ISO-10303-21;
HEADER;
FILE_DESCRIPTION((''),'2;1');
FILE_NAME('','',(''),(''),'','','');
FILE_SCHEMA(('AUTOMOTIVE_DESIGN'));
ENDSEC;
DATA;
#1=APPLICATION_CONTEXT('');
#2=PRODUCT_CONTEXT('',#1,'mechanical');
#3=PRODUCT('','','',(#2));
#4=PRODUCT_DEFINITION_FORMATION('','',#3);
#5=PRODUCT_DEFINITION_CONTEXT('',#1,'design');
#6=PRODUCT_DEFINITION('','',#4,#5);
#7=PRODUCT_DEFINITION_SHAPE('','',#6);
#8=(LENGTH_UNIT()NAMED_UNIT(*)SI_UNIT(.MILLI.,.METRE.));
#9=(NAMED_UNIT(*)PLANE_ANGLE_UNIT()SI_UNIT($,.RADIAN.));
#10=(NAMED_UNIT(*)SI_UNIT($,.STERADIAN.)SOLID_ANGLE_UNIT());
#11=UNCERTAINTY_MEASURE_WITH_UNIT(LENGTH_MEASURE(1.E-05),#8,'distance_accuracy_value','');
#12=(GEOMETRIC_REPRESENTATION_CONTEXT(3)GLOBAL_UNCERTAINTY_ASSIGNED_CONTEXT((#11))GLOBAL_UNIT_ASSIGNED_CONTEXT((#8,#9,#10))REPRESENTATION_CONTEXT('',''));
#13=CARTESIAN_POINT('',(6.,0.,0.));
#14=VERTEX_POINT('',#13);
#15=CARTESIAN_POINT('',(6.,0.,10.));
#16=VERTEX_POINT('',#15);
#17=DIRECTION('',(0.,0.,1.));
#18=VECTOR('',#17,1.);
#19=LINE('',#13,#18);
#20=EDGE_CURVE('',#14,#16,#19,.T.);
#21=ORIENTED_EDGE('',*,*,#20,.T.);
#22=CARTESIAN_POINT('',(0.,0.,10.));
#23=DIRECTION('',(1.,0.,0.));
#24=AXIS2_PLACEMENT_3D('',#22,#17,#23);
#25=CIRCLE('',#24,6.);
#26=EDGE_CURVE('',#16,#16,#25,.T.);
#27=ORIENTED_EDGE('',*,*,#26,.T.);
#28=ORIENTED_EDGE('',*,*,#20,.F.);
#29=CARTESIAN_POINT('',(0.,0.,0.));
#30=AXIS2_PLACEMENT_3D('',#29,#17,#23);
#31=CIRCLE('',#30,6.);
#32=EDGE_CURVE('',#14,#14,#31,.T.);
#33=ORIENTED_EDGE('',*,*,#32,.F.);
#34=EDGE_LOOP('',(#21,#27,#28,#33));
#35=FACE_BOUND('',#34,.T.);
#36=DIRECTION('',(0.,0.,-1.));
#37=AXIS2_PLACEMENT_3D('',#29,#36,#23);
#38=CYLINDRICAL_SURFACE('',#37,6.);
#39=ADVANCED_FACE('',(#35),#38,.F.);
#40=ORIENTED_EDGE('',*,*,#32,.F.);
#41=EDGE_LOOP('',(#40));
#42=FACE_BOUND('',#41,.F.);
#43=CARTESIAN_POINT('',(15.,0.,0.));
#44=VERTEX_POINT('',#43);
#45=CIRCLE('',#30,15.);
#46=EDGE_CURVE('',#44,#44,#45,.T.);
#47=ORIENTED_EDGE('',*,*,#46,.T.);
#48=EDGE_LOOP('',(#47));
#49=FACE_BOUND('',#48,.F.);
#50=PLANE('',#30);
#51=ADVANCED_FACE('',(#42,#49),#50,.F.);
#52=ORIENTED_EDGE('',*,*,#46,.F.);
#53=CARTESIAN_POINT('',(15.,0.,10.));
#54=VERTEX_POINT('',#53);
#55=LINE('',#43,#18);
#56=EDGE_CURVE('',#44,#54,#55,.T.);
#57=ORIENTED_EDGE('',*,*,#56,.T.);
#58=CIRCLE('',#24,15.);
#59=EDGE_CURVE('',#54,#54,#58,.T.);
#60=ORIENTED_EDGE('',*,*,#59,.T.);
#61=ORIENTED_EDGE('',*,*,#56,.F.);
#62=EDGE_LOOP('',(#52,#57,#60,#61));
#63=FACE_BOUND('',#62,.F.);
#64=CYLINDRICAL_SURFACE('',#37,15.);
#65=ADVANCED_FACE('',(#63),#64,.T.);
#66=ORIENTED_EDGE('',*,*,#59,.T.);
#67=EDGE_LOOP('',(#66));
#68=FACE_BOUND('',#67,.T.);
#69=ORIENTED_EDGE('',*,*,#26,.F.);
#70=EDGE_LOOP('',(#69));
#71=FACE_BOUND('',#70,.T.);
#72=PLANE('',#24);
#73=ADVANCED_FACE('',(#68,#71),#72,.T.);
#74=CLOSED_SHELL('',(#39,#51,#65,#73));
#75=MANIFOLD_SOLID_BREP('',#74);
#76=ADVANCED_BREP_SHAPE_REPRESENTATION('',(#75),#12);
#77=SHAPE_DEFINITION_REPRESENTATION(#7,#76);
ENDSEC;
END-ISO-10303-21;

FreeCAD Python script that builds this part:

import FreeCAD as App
import Part
import Sketcher

V = App.Vector

doc = App.newDocument("Part")
body = doc.addObject("PartDesign::Body", "Body")

# Sketch on XY plane
sketch1 = body.newObject("Sketcher::SketchObject", "Sketch")
sketch1.AttachmentSupport = (doc.getObject("XY_Plane"), [""])
sketch1.MapMode = "FlatFace"
sketch1.addGeometry(Part.Circle(V(0, 0, 0), V(0, 0, 1), 15), False)
sketch1.addGeometry(Part.Circle(V(0, 0, 0), V(0, 0, 1), 6), False)
sketch1.addConstraint(Sketcher.Constraint("Coincident", 0, 3, -1, 1))
sketch1.addConstraint(Sketcher.Constraint("Coincident", 1, 3, -1, 1))
sketch1.addConstraint(Sketcher.Constraint("Diameter", 0, 30.0))
sketch1.addConstraint(Sketcher.Constraint("Diameter", 1, 12.0))
pad1 = body.newObject("PartDesign::Pad", "Pad")
pad1.Profile = sketch1
pad1.Length = 10

doc.recompute()
